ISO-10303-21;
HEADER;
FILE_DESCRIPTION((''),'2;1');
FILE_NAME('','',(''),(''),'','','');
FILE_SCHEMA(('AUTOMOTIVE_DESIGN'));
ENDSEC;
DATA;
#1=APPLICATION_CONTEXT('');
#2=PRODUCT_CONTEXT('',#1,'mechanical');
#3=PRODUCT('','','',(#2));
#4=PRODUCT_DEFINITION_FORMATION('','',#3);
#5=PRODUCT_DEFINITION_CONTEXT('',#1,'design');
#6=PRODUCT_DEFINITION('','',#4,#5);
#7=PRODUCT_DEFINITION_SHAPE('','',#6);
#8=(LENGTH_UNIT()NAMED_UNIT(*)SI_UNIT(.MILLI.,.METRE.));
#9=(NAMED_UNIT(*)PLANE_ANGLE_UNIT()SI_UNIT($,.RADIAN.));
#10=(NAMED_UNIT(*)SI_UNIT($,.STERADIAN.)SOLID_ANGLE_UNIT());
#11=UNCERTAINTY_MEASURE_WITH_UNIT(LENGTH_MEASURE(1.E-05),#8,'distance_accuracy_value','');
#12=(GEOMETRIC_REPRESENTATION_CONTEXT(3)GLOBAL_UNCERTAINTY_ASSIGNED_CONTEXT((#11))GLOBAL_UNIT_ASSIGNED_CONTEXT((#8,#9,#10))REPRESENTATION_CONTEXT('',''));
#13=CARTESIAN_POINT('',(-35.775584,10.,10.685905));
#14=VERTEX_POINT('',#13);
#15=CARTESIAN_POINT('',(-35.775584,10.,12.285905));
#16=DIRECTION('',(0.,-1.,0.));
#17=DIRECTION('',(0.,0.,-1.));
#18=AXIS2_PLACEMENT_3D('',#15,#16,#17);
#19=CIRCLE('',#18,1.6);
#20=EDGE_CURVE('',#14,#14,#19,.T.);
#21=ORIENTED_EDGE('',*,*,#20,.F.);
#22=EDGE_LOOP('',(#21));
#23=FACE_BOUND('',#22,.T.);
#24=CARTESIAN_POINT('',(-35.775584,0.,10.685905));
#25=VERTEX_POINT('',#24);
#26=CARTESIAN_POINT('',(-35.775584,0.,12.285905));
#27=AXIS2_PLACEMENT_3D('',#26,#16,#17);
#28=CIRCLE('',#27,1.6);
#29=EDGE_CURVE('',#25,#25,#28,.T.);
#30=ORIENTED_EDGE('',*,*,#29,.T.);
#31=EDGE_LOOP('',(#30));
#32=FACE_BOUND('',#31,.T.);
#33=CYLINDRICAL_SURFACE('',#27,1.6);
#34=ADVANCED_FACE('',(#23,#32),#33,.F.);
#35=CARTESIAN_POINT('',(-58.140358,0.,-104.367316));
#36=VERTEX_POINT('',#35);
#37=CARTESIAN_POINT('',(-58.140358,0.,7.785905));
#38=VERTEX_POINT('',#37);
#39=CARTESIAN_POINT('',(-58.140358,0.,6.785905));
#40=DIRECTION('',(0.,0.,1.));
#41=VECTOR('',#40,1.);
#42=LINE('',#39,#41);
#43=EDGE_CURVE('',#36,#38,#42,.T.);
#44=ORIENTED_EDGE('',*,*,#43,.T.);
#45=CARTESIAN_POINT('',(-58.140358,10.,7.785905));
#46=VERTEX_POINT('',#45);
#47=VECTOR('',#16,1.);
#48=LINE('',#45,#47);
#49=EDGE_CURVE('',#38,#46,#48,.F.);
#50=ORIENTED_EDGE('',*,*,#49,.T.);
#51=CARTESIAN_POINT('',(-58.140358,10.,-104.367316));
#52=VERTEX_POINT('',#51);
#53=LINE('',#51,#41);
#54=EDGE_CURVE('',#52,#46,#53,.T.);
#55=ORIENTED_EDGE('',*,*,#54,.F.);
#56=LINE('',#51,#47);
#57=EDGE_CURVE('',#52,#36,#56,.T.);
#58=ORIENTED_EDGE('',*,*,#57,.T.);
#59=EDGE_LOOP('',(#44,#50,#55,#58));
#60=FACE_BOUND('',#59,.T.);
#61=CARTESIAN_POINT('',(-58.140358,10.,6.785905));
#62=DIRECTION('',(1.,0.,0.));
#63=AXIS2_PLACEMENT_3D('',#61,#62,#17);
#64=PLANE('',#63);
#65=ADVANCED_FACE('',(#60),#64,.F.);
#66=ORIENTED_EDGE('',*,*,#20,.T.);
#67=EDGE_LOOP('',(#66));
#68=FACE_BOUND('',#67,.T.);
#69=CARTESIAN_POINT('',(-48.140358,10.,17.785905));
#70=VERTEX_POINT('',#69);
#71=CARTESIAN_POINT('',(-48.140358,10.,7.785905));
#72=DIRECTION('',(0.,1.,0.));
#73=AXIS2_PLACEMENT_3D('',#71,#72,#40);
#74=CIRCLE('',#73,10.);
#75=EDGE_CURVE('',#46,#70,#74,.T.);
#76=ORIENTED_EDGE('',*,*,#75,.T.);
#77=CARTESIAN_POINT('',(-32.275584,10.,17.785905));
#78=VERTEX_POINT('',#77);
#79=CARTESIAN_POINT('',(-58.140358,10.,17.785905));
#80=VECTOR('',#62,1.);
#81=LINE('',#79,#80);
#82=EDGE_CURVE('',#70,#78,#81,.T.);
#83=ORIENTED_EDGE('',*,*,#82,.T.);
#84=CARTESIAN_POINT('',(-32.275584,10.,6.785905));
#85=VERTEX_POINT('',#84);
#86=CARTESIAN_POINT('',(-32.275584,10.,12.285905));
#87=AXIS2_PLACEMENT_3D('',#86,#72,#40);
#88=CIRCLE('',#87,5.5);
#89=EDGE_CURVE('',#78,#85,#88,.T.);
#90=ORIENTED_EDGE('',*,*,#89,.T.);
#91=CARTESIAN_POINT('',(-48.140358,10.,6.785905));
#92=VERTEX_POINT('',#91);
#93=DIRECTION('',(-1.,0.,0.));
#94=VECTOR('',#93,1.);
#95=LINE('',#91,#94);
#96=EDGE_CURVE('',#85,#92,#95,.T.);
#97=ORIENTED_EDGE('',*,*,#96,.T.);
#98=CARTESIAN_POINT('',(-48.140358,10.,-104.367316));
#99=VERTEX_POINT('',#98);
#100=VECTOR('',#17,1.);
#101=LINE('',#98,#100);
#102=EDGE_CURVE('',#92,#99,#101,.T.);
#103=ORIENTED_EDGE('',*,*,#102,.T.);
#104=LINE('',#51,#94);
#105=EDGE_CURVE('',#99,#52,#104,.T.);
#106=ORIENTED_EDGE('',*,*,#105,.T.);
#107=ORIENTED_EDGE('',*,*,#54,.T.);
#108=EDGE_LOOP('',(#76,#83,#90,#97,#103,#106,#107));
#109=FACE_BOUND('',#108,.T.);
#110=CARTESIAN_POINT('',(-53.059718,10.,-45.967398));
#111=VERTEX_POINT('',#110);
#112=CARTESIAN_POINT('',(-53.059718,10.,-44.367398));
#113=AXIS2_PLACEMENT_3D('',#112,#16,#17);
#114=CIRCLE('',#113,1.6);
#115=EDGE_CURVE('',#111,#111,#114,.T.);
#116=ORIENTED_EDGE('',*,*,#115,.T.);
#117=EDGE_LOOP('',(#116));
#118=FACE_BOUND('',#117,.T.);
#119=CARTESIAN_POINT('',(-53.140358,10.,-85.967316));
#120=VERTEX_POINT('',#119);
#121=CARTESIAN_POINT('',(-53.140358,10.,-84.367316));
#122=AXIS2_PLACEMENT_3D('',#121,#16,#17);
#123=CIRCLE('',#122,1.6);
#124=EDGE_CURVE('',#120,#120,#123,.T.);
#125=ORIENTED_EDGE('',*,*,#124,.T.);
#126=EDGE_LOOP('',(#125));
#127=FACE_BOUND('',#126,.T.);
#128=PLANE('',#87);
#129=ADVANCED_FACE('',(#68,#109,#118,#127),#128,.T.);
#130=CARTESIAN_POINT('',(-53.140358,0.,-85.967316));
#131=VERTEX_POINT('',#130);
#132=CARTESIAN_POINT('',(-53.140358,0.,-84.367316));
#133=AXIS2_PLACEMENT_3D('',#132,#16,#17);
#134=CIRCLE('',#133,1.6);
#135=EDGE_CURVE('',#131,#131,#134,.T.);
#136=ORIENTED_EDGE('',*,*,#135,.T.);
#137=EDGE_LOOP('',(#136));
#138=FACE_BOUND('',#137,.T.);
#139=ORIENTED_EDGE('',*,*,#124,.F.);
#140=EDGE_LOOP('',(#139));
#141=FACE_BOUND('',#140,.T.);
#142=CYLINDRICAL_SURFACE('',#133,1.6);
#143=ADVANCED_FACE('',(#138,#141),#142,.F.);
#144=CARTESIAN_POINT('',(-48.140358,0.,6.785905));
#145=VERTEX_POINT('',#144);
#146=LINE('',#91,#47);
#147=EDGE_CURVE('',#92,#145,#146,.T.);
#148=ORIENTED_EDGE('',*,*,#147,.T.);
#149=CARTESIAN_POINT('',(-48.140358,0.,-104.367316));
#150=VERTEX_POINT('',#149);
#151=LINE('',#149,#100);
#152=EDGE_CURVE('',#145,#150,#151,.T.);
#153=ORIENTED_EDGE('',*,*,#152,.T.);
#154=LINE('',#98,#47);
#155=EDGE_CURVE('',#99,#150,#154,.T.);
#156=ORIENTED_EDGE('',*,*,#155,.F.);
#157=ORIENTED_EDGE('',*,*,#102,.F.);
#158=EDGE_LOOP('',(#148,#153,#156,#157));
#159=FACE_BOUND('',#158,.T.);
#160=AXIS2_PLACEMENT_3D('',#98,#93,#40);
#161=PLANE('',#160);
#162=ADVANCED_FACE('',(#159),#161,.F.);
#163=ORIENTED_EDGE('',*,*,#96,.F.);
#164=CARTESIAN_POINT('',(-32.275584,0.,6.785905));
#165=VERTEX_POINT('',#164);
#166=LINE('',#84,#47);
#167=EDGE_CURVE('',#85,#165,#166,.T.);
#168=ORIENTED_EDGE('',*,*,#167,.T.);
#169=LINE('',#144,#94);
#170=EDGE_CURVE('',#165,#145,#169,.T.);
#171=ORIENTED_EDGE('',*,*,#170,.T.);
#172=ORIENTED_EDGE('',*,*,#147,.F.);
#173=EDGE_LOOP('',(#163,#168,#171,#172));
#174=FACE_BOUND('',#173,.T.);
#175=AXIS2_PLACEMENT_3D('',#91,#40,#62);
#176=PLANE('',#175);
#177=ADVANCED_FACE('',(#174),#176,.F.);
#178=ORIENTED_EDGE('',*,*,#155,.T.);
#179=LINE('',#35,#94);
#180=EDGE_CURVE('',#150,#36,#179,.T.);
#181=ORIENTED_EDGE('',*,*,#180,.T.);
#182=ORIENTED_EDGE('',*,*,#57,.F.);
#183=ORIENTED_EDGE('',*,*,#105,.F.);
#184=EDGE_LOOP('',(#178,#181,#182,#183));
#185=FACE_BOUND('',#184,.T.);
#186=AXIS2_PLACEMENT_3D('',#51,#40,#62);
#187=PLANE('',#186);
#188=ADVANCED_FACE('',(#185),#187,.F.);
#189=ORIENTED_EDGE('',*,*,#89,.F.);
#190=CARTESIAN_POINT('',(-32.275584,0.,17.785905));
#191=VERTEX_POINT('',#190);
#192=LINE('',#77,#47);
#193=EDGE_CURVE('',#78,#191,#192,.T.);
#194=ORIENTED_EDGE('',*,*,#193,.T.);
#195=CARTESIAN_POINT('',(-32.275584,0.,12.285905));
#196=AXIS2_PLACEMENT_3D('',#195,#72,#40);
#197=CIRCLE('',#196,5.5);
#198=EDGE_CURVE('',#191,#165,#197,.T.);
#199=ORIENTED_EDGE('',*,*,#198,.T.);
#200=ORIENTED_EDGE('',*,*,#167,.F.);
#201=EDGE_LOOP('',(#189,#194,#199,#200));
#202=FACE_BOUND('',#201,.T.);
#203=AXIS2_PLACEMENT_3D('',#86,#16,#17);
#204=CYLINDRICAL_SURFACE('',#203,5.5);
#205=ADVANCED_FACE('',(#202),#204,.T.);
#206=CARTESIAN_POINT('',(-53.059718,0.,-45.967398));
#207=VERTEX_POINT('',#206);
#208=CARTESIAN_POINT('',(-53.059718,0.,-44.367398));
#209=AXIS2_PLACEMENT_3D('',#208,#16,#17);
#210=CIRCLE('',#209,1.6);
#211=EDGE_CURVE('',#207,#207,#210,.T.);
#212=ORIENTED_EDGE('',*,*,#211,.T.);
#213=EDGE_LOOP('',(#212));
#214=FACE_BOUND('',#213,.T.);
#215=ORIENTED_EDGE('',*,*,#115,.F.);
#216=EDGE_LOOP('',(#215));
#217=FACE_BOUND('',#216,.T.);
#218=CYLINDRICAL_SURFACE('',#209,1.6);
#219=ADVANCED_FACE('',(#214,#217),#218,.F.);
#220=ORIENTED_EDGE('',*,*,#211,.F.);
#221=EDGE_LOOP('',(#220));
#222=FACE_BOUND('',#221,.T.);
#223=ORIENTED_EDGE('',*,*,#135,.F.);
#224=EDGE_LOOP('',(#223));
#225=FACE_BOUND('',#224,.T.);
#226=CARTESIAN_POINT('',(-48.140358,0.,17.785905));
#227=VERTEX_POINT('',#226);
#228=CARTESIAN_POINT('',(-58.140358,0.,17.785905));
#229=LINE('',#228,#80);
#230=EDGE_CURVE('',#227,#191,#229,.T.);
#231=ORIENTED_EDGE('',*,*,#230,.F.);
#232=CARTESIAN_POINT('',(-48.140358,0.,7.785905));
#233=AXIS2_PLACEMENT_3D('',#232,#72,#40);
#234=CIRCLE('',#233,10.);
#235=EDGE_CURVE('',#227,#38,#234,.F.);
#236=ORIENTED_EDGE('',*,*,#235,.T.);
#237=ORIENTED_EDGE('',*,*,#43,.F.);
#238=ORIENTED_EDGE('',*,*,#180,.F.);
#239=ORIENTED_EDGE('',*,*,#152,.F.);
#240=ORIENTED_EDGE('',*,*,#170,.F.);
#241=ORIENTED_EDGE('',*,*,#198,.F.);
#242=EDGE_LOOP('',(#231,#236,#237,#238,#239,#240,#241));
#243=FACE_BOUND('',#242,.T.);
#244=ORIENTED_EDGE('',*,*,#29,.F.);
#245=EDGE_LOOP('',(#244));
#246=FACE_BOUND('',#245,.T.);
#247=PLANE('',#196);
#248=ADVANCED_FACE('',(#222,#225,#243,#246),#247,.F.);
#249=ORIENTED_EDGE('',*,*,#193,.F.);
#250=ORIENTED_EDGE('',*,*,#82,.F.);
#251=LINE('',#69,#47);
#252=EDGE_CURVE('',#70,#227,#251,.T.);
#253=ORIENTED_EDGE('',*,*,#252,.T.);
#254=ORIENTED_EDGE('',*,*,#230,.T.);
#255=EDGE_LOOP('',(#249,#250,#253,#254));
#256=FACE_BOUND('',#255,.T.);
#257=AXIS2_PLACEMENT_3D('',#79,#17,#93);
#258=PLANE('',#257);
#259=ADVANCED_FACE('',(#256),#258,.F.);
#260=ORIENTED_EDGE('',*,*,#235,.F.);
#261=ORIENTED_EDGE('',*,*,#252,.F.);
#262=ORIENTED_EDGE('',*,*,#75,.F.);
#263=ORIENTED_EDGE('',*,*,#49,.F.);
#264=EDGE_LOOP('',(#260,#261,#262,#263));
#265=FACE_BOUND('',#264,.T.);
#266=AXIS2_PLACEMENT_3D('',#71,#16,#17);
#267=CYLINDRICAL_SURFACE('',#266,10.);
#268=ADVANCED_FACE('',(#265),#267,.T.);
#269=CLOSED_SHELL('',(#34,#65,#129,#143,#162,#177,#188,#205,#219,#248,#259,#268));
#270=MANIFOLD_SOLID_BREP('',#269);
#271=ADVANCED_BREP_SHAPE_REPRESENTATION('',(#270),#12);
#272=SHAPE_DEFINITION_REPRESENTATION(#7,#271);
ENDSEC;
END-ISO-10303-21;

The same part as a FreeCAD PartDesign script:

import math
import FreeCAD as App
import Part
import Sketcher
Q = App.Units.Quantity


def edges_at(feature, points):
    """Names of the edges that pass closest to the given points."""
    edges = feature.Shape.Edges
    near = lambda p: min(range(len(edges)), key=lambda i: edges[i].distToShape(Part.Vertex(*p))[0])
    return sorted({f"Edge{near(p) + 1}" for p in points})

doc = App.newDocument("Part")
body = doc.addObject("PartDesign::Body", "Body")

sketch1 = body.newObject("Sketcher::SketchObject", "Sketch")
sketch1.AttachmentSupport = (doc.getObject("XZ_Plane"), [""])
sketch1.MapMode = "FlatFace"
sketch1.addGeometry([
    Part.LineSegment(App.Vector(-48, -104, 0), App.Vector(-58, -104, 0)),
    Part.LineSegment(App.Vector(-58, -104, 0), App.Vector(-58, 18, 0)),
    Part.LineSegment(App.Vector(-58, 18, 0), App.Vector(-32, 18, 0)),
    Part.ArcOfCircle(Part.Circle(App.Vector(-32, 12, 0), App.Vector(0, 0, 1), 6), math.radians(-90), math.radians(90)),
    Part.LineSegment(App.Vector(-32, 7, 0), App.Vector(-48, 7, 0)),
    Part.LineSegment(App.Vector(-48, 7, 0), App.Vector(-48, -104, 0)),
], False)
sketch1.addConstraint([
    Sketcher.Constraint("Coincident", 0, 2, 1, 1),
    Sketcher.Constraint("Coincident", 1, 2, 2, 1),
    Sketcher.Constraint("Tangent", 2, 2, 3, 2),
    Sketcher.Constraint("Tangent", 3, 1, 4, 1),
    Sketcher.Constraint("Coincident", 4, 2, 5, 1),
    Sketcher.Constraint("Coincident", 5, 2, 0, 1),
    Sketcher.Constraint("Horizontal", 0),
    Sketcher.Constraint("Vertical", 1),
    Sketcher.Constraint("Horizontal", 2),
    Sketcher.Constraint("Horizontal", 4),
    Sketcher.Constraint("Vertical", 5),
    Sketcher.Constraint("Radius", 3, Q("5.5 mm")),
    Sketcher.Constraint("DistanceX", 0, 2, 0, 1, Q("10 mm")),
    Sketcher.Constraint("DistanceY", 1, 1, 1, 2, Q("122.153221 mm")),
    Sketcher.Constraint("DistanceX", 2, 1, 2, 2, Q("25.864774 mm")),
    Sketcher.Constraint("DistanceX", 3, 3, -1, 1, Q("32.275584 mm")),
    Sketcher.Constraint("DistanceY", -1, 1, 3, 3, Q("12.285905 mm")),
])
pad1 = body.newObject("PartDesign::Pad", "Pad")
pad1.Profile = sketch1
pad1.Length = 10
pad1.Reversed = True
doc.recompute()

fillet = body.newObject("PartDesign::Fillet", "Fillet")
fillet.Base = (pad1, edges_at(pad1, [(-58.14, 5, 17.786)]))
fillet.Radius = 10

sketch2 = body.newObject("Sketcher::SketchObject", "Sketch001")
sketch2.AttachmentSupport = (doc.getObject("XZ_Plane"), [""])
sketch2.MapMode = "FlatFace"
sketch2.addGeometry([
    Part.Circle(App.Vector(-35.8, 12.3, 0), App.Vector(0, 0, 1), 1.6),
    Part.Circle(App.Vector(-53.1, -84.4, 0), App.Vector(0, 0, 1), 1.6),
    Part.Circle(App.Vector(-53.1, -44.4, 0), App.Vector(0, 0, 1), 1.6),
], False)
sketch2.addConstraint([
    Sketcher.Constraint("Equal", 0, 1),
    Sketcher.Constraint("Equal", 1, 2),
    Sketcher.Constraint("Diameter", 0, Q("3.2 mm")),
    Sketcher.Constraint("DistanceY", 1, 3, 0, 3, Q("96.653221 mm")),
    Sketcher.Constraint("DistanceX", 1, 3, 2, 3, Q("0.08064 mm")),
    Sketcher.Constraint("DistanceY", 1, 3, 2, 3, Q("39.999919 mm")),
    Sketcher.Constraint("DistanceX", 0, 3, -1, 1, Q("35.775584 mm")),
    Sketcher.Constraint("DistanceY", -1, 1, 0, 3, Q("12.285905 mm")),
    Sketcher.Constraint("DistanceX", 1, 3, -1, 1, Q("53.140358 mm")),
])
doc.recompute()
hole = body.newObject("PartDesign::Hole", "Hole")
hole.Profile = sketch2
hole.ThreadType = "None"
hole.Diameter = 3.2
hole.DepthType = "ThroughAll"

doc.recompute()
